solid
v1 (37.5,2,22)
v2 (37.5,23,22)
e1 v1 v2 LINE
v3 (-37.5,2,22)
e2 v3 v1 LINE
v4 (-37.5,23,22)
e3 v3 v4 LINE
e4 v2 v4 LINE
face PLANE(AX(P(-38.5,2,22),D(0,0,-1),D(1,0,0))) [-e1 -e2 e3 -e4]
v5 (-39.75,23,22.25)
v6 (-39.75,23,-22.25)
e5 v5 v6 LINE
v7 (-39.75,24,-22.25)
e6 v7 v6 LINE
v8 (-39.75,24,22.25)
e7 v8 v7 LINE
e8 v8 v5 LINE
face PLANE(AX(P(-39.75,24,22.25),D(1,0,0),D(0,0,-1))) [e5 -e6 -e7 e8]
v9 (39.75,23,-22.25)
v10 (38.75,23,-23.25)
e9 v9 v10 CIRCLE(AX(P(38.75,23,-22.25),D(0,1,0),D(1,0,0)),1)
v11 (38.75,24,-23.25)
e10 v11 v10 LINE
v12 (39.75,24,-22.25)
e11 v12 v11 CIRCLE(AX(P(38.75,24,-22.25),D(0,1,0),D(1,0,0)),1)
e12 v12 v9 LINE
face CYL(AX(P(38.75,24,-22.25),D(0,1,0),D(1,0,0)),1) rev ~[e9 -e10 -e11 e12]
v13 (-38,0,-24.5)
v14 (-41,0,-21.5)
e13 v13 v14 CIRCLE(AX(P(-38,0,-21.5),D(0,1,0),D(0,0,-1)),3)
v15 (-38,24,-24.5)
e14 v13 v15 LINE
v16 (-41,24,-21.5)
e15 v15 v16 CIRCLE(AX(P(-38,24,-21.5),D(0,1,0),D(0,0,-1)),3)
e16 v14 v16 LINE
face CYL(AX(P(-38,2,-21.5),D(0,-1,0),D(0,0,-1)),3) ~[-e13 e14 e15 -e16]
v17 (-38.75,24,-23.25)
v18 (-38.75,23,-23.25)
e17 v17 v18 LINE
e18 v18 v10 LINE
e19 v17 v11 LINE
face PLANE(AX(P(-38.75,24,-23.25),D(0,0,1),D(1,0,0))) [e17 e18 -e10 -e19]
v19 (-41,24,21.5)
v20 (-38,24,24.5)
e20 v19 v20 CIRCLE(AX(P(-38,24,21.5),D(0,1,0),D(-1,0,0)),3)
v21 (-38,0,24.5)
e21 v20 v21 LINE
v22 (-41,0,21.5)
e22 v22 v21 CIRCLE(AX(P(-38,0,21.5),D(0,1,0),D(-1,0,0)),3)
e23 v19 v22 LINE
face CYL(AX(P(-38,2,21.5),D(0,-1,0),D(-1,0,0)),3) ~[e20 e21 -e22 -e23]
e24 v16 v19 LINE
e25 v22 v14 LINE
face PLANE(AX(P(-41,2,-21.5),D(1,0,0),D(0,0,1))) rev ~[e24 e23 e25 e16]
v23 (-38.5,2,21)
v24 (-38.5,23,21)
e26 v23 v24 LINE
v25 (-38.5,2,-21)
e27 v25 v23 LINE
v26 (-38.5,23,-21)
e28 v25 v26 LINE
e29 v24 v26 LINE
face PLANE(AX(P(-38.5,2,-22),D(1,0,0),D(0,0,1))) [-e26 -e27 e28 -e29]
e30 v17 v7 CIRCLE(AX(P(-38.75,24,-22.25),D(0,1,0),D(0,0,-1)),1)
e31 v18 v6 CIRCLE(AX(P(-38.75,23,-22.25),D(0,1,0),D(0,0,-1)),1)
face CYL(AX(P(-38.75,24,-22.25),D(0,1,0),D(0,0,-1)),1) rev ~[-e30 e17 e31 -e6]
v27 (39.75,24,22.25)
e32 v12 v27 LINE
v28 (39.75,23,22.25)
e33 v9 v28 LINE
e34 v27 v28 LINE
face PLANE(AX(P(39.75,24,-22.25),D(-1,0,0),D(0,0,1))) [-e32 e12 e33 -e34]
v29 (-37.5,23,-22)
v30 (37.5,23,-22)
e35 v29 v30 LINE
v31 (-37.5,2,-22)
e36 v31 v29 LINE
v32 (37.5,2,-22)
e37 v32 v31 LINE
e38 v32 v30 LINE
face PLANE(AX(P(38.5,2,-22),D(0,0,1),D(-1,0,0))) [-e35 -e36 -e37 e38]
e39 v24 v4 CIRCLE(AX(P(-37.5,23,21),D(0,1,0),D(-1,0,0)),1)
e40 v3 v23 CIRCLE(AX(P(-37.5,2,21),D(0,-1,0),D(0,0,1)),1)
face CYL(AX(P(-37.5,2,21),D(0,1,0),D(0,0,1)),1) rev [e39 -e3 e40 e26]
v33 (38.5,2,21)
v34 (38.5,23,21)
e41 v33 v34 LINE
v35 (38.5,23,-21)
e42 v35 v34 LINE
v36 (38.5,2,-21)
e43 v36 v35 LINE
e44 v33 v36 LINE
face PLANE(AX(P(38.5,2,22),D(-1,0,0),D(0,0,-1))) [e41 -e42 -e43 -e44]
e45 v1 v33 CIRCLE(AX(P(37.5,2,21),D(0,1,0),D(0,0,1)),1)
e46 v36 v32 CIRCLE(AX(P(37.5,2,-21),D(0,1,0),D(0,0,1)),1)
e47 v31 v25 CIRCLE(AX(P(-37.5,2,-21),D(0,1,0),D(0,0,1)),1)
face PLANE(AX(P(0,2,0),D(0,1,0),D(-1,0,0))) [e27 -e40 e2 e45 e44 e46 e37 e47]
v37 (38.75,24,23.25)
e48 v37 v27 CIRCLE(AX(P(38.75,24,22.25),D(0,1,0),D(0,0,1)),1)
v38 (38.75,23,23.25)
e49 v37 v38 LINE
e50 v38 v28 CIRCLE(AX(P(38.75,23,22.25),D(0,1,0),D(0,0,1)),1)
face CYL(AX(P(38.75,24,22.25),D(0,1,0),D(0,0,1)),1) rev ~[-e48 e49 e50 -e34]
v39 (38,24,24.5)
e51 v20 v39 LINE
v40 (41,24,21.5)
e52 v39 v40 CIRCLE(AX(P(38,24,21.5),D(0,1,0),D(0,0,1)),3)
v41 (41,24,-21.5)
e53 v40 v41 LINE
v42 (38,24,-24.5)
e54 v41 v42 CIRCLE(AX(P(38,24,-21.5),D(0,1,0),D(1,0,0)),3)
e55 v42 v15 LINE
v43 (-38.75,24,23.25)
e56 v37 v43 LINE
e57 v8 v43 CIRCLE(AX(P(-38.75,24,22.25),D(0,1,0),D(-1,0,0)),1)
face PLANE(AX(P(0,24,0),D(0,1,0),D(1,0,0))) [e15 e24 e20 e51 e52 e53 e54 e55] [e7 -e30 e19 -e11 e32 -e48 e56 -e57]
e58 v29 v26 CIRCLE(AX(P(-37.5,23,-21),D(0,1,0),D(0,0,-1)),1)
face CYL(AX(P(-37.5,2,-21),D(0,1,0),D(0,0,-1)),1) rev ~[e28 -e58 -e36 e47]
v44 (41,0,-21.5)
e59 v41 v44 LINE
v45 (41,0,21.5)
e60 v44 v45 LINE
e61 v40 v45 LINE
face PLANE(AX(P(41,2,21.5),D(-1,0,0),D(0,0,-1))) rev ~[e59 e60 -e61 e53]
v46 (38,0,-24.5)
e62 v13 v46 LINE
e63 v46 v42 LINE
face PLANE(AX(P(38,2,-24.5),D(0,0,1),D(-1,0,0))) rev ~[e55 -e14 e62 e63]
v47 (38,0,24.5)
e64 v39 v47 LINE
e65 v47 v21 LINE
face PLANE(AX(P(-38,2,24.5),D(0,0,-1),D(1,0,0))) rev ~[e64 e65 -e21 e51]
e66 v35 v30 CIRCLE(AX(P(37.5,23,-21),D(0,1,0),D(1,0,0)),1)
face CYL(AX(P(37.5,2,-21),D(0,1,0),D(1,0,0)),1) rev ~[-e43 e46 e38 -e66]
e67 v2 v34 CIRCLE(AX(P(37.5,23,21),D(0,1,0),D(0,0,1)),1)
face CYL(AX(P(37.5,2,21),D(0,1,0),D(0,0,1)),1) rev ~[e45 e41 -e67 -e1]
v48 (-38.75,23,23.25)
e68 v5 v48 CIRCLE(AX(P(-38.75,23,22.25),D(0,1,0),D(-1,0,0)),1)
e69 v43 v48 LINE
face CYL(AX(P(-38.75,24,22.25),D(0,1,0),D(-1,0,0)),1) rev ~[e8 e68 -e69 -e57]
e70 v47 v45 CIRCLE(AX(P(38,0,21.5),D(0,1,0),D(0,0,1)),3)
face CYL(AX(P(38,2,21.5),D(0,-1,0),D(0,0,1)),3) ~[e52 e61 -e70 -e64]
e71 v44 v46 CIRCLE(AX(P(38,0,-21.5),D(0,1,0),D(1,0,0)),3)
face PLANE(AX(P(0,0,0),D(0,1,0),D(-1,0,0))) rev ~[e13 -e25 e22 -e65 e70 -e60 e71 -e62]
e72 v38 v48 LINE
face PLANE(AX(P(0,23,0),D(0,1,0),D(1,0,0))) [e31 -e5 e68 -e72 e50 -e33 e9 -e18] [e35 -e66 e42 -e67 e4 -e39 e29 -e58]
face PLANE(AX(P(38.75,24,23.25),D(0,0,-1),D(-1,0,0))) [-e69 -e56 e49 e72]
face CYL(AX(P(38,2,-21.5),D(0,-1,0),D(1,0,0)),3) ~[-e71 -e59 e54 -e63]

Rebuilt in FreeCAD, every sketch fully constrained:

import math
import FreeCAD as App
import Part
import Sketcher

V = App.Vector


def edges_at(feature, points):
    """Names of the edges that pass closest to the given points."""
    edges = feature.Shape.Edges
    near = lambda p: min(range(len(edges)), key=lambda i: edges[i].distToShape(Part.Vertex(*p))[0])
    return sorted({f"Edge{near(p) + 1}" for p in points})


def add_polygon(sketch, points):
    """Adds a closed chain of lines whose ends are joined by coincident constraints."""
    first, n = sketch.GeometryCount, len(points)
    for a, b in zip(points, points[1:] + points[:1]):
        sketch.addGeometry(Part.LineSegment(App.Vector(*a, 0), App.Vector(*b, 0)), False)
    for i in range(n):
        sketch.addConstraint(Sketcher.Constraint("Coincident", first + i, 2, first + (i + 1) % n, 1))

doc = App.newDocument("Part")
body = doc.addObject("PartDesign::Body", "Body")

# Sketch on XZ plane
sketch1 = body.newObject("Sketcher::SketchObject", "Sketch")
sketch1.AttachmentSupport = (doc.getObject("XZ_Plane"), [""])
sketch1.MapMode = "FlatFace"
sketch1.addGeometry([
    Part.LineSegment(V(-38, 24.5, 0), V(38, 24.5, 0)),  # 0
    Part.ArcOfCircle(Part.Circle(V(38, 21.5, 0), V(0, 0, 1), 3), math.radians(0), math.radians(90)),  # 1
    Part.LineSegment(V(41, 21.5, 0), V(41, -21.5, 0)),  # 2
    Part.ArcOfCircle(Part.Circle(V(38, -21.5, 0), V(0, 0, 1), 3), math.radians(-90), math.radians(0)),  # 3
    Part.LineSegment(V(38, -24.5, 0), V(-38, -24.5, 0)),  # 4
    Part.ArcOfCircle(Part.Circle(V(-38, -21.5, 0), V(0, 0, 1), 3), math.radians(180), math.radians(270)),  # 5
    Part.LineSegment(V(-41, -21.5, 0), V(-41, 21.5, 0)),  # 6
    Part.ArcOfCircle(Part.Circle(V(-38, 21.5, 0), V(0, 0, 1), 3), math.radians(90), math.radians(180)),  # 7
], False)
sketch1.addConstraint([
    Sketcher.Constraint("Tangent", 0, 2, 1, 2),
    Sketcher.Constraint("Tangent", 1, 1, 2, 1),
    Sketcher.Constraint("Tangent", 2, 2, 3, 2),
    Sketcher.Constraint("Tangent", 3, 1, 4, 1),
    Sketcher.Constraint("Tangent", 4, 2, 5, 2),
    Sketcher.Constraint("Tangent", 5, 1, 6, 1),
    Sketcher.Constraint("Tangent", 6, 2, 7, 2),
    Sketcher.Constraint("Tangent", 7, 1, 0, 1),
    Sketcher.Constraint("Horizontal", 0),
    Sketcher.Constraint("Vertical", 2),
    Sketcher.Constraint("Horizontal", 4),
    Sketcher.Constraint("Vertical", 6),
    Sketcher.Constraint("Equal", 1, 3),
    Sketcher.Constraint("Equal", 3, 5),
    Sketcher.Constraint("Equal", 5, 7),
    Sketcher.Constraint("Symmetric", 1, 3, 5, 3, -1, 1),
    Sketcher.Constraint("Radius", 1, 3.0),
    Sketcher.Constraint("DistanceY", 3, 1, 0, 2, 49.0),
    Sketcher.Constraint("DistanceX", 0, 1, 0, 2, 76.0),
])
pad1 = body.newObject("PartDesign::Pad", "Pad")
pad1.Profile = sketch1
pad1.Length = 2
pad1.Reversed = True

# Sketch on XZ plane
sketch2 = body.newObject("Sketcher::SketchObject", "Sketch001")
sketch2.AttachmentSupport = (doc.getObject("XZ_Plane"), [""])
sketch2.MapMode = "FlatFace"
sketch2.AttachmentOffset = App.Placement(V(0, 0, -2), App.Rotation())
sketch2.addGeometry(Part.ArcOfCircle(Part.Circle(V(38, -21.5, 0), V(0, 0, 1), 3), math.radians(-90), math.radians(0)), False)  # 0
sketch2.addGeometry(Part.LineSegment(V(38, -24.5, 0), V(-38, -24.5, 0)), False)  # 1
sketch2.addGeometry(Part.ArcOfCircle(Part.Circle(V(-38, -21.5, 0), V(0, 0, 1), 3), math.radians(180), math.radians(270)), False)  # 2
sketch2.addGeometry(Part.LineSegment(V(-41, -21.5, 0), V(-41, 21.5, 0)), False)  # 3
sketch2.addGeometry(Part.ArcOfCircle(Part.Circle(V(-38, 21.5, 0), V(0, 0, 1), 3), math.radians(90), math.radians(180)), False)  # 4
sketch2.addGeometry(Part.LineSegment(V(-38, 24.5, 0), V(38, 24.5, 0)), False)  # 5
sketch2.addGeometry(Part.ArcOfCircle(Part.Circle(V(38, 21.5, 0), V(0, 0, 1), 3), math.radians(0), math.radians(90)), False)  # 6
sketch2.addGeometry(Part.LineSegment(V(41, 21.5, 0), V(41, -21.5, 0)), False)  # 7
add_polygon(sketch2, [(38.5, 22), (-38.5, 22), (-38.5, -22), (38.5, -22)])  # lines 8-11
sketch2.addConstraint([
    Sketcher.Constraint("Tangent", 0, 1, 1, 1),
    Sketcher.Constraint("Tangent", 1, 2, 2, 2),
    Sketcher.Constraint("Tangent", 2, 1, 3, 1),
    Sketcher.Constraint("Tangent", 3, 2, 4, 2),
    Sketcher.Constraint("Tangent", 4, 1, 5, 1),
    Sketcher.Constraint("Tangent", 5, 2, 6, 2),
    Sketcher.Constraint("Tangent", 6, 1, 7, 1),
    Sketcher.Constraint("Tangent", 7, 2, 0, 2),
    Sketcher.Constraint("Horizontal", 1),
    Sketcher.Constraint("Vertical", 3),
    Sketcher.Constraint("Horizontal", 5),
    Sketcher.Constraint("Vertical", 7),
    Sketcher.Constraint("Horizontal", 8),
    Sketcher.Constraint("Vertical", 9),
    Sketcher.Constraint("Horizontal", 10),
    Sketcher.Constraint("Vertical", 11),
    Sketcher.Constraint("Equal", 0, 2),
    Sketcher.Constraint("Equal", 2, 4),
    Sketcher.Constraint("Equal", 4, 6),
    Sketcher.Constraint("Symmetric", 0, 3, 4, 3, -1, 1),
    Sketcher.Constraint("Symmetric", 8, 2, 10, 2, -1, 1),
    Sketcher.Constraint("Radius", 0, 3.0),
    Sketcher.Constraint("DistanceX", 3, 2, 8, 2, 2.5),
    Sketcher.Constraint("DistanceY", 8, 2, 4, 1, 2.5),
    Sketcher.Constraint("DistanceX", 1, 2, 1, 1, 76.0),
    Sketcher.Constraint("DistanceY", 3, 1, 3, 2, 43.0),
])
pad2 = body.newObject("PartDesign::Pad", "Pad001")
pad2.Profile = sketch2
pad2.Length = 22
pad2.Reversed = True
doc.recompute()

fillet = body.newObject("PartDesign::Fillet", "Fillet")
fillet.Base = (pad2, edges_at(pad2, [
    (-38.5, 13, -22),
    (-38.5, 13, 22),
    (38.5, 13, 22),
    (38.5, 13, -22),
]))
fillet.Radius = 1

# Sketch on XZ plane
sketch3 = body.newObject("Sketcher::SketchObject", "Sketch002")
sketch3.AttachmentSupport = (doc.getObject("XZ_Plane"), [""])
sketch3.MapMode = "FlatFace"
sketch3.AttachmentOffset = App.Placement(V(0, 0, -24), App.Rotation())
sketch3.addGeometry([
    Part.LineSegment(V(38.8, -23.2, 0), V(-38.8, -23.2, 0)),  # 0
    Part.ArcOfCircle(Part.Circle(V(-38.8, -22.2, 0), V(0, 0, 1), 1), math.radians(180), math.radians(270)),  # 1
    Part.LineSegment(V(-39.8, -22.2, 0), V(-39.8, 22.2, 0)),  # 2
    Part.ArcOfCircle(Part.Circle(V(-38.8, 22.2, 0), V(0, 0, 1), 1), math.radians(90), math.radians(180)),  # 3
    Part.LineSegment(V(-38.8, 23.2, 0), V(38.8, 23.2, 0)),  # 4
    Part.ArcOfCircle(Part.Circle(V(38.8, 22.2, 0), V(0, 0, 1), 1), math.radians(0), math.radians(90)),  # 5
    Part.LineSegment(V(39.8, 22.2, 0), V(39.8, -22.2, 0)),  # 6
    Part.ArcOfCircle(Part.Circle(V(38.8, -22.2, 0), V(0, 0, 1), 1), math.radians(-90), math.radians(0)),  # 7
    Part.ArcOfCircle(Part.Circle(V(-37.5, 21, 0), V(0, 0, 1), 1), math.radians(90), math.radians(180)),  # 8
    Part.LineSegment(V(-38.5, 21, 0), V(-38.5, -21, 0)),  # 9
    Part.ArcOfCircle(Part.Circle(V(-37.5, -21, 0), V(0, 0, 1), 1), math.radians(180), math.radians(270)),  # 10
    Part.LineSegment(V(-37.5, -22, 0), V(37.5, -22, 0)),  # 11
    Part.ArcOfCircle(Part.Circle(V(37.5, -21, 0), V(0, 0, 1), 1), math.radians(-90), math.radians(0)),  # 12
    Part.LineSegment(V(38.5, -21, 0), V(38.5, 21, 0)),  # 13
    Part.ArcOfCircle(Part.Circle(V(37.5, 21, 0), V(0, 0, 1), 1), math.radians(0), math.radians(90)),  # 14
    Part.LineSegment(V(37.5, 22, 0), V(-37.5, 22, 0)),  # 15
], False)
sketch3.addConstraint([
    Sketcher.Constraint("Tangent", 0, 2, 1, 2),
    Sketcher.Constraint("Tangent", 1, 1, 2, 1),
    Sketcher.Constraint("Tangent", 2, 2, 3, 2),
    Sketcher.Constraint("Tangent", 3, 1, 4, 1),
    Sketcher.Constraint("Tangent", 4, 2, 5, 2),
    Sketcher.Constraint("Tangent", 5, 1, 6, 1),
    Sketcher.Constraint("Tangent", 6, 2, 7, 2),
    Sketcher.Constraint("Tangent", 7, 1, 0, 1),
    Sketcher.Constraint("Tangent", 8, 2, 9, 1),
    Sketcher.Constraint("Tangent", 9, 2, 10, 1),
    Sketcher.Constraint("Tangent", 10, 2, 11, 1),
    Sketcher.Constraint("Tangent", 11, 2, 12, 1),
    Sketcher.Constraint("Tangent", 12, 2, 13, 1),
    Sketcher.Constraint("Tangent", 13, 2, 14, 1),
    Sketcher.Constraint("Tangent", 14, 2, 15, 1),
    Sketcher.Constraint("Tangent", 15, 2, 8, 1),
    Sketcher.Constraint("Horizontal", 0),
    Sketcher.Constraint("Vertical", 2),
    Sketcher.Constraint("Horizontal", 4),
    Sketcher.Constraint("Vertical", 6),
    Sketcher.Constraint("Vertical", 9),
    Sketcher.Constraint("Horizontal", 11),
    Sketcher.Constraint("Vertical", 13),
    Sketcher.Constraint("Horizontal", 15),
    Sketcher.Constraint("Equal", 1, 3),
    Sketcher.Constraint("Equal", 3, 5),
    Sketcher.Constraint("Equal", 5, 7),
    Sketcher.Constraint("Equal", 7, 8),
    Sketcher.Constraint("Equal", 8, 10),
    Sketcher.Constraint("Equal", 10, 12),
    Sketcher.Constraint("Equal", 12, 14),
    Sketcher.Constraint("Symmetric", 1, 3, 5, 3, -1, 1),
    Sketcher.Constraint("Symmetric", 8, 3, 12, 3, -1, 1),
    Sketcher.Constraint("Radius", 1, 1.0),
    Sketcher.Constraint("DistanceX", 11, 1, 11, 2, 75.0),
    Sketcher.Constraint("DistanceY", 9, 2, 9, 1, 42.0),
    Sketcher.Constraint("DistanceX", 3, 3, 8, 3, 1.25),
    Sketcher.Constraint("DistanceY", 8, 3, 3, 3, 1.25),
])
pocket1 = body.newObject("PartDesign::Pocket", "Pocket")
pocket1.Profile = sketch3
pocket1.Length = 1
pocket1.Reversed = True

doc.recompute()
